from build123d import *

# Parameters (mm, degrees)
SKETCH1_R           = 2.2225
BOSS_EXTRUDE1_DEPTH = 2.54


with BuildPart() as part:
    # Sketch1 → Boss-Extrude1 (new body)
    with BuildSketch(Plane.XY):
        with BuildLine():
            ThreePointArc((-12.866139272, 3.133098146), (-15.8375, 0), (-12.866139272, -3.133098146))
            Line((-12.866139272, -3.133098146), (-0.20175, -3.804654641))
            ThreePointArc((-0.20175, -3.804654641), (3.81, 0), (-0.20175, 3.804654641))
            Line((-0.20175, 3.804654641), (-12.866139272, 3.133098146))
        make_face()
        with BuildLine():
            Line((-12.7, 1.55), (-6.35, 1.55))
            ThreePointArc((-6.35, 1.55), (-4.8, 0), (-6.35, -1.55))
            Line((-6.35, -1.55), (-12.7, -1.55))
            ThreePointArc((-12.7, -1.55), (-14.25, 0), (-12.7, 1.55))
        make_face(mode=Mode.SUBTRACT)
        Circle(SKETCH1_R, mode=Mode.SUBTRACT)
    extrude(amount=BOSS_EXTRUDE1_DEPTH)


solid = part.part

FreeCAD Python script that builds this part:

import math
import FreeCAD as App
import Part
import Sketcher
Q = App.Units.Quantity

doc = App.newDocument("Part")
body = doc.addObject("PartDesign::Body", "Body")

sketch1 = doc.addObject("Sketcher::SketchObject", "Sketch")
body.addObject(sketch1)
sketch1.AttachmentSupport = (doc.XY_Plane, [""])
sketch1.MapMode = "FlatFace"
sketch1.addGeometry(Part.ArcOfCircle(Part.Circle(App.Vector(-12.7, 0, 0), App.Vector(0, 0, 1), 3.1), math.radians(93), math.radians(267)), False)
sketch1.addGeometry(Part.LineSegment(App.Vector(-12.9, -3.1, 0), App.Vector(-0.2, -3.8, 0)), False)
sketch1.addGeometry(Part.ArcOfCircle(Part.Circle(App.Vector(0, 0, 0), App.Vector(0, 0, 1), 3.8), math.radians(-93), math.radians(93)), False)
sketch1.addGeometry(Part.LineSegment(App.Vector(-0.2, 3.8, 0), App.Vector(-12.9, 3.1, 0)), False)
sketch1.addGeometry(Part.ArcOfCircle(Part.Circle(App.Vector(-12.7, 0, 0), App.Vector(0, 0, 1), 1.6), math.radians(90), math.radians(270)), False)
sketch1.addGeometry(Part.LineSegment(App.Vector(-12.7, 1.6, 0), App.Vector(-6.3, 1.6, 0)), False)
sketch1.addGeometry(Part.ArcOfCircle(Part.Circle(App.Vector(-6.3, 0, 0), App.Vector(0, 0, 1), 1.6), math.radians(-90), math.radians(90)), False)
sketch1.addGeometry(Part.LineSegment(App.Vector(-6.3, -1.6, 0), App.Vector(-12.7, -1.6, 0)), False)
sketch1.addGeometry(Part.Circle(App.Vector(0, 0, 0), App.Vector(0, 0, 1), 2.2), False)
sketch1.addConstraint(Sketcher.Constraint("Tangent", 0, 2, 1, 1))
sketch1.addConstraint(Sketcher.Constraint("Tangent", 1, 2, 2, 1))
sketch1.addConstraint(Sketcher.Constraint("Tangent", 2, 2, 3, 1))
sketch1.addConstraint(Sketcher.Constraint("Tangent", 3, 2, 0, 1))
sketch1.addConstraint(Sketcher.Constraint("Tangent", 4, 1, 5, 1))
sketch1.addConstraint(Sketcher.Constraint("Tangent", 5, 2, 6, 2))
sketch1.addConstraint(Sketcher.Constraint("Tangent", 6, 1, 7, 1))
sketch1.addConstraint(Sketcher.Constraint("Tangent", 7, 2, 4, 2))
sketch1.addConstraint(Sketcher.Constraint("Horizontal", 5))
sketch1.addConstraint(Sketcher.Constraint("Horizontal", 7))
sketch1.addConstraint(Sketcher.Constraint("Coincident", 2, 3, -1, 1))
sketch1.addConstraint(Sketcher.Constraint("Coincident", 8, 3, -1, 1))
sketch1.addConstraint(Sketcher.Constraint("Coincident", 4, 3, 0, 3))
sketch1.addConstraint(Sketcher.Constraint("PointOnObject", 0, 3, -1))
sketch1.addConstraint(Sketcher.Constraint("Radius", 2, Q("0.15 in")))
sketch1.addConstraint(Sketcher.Constraint("Diameter", 8, Q("0.175 in")))
sketch1.addConstraint(Sketcher.Constraint("DistanceX", 5, 1, 5, 2, Q("0.25 in")))
sketch1.addConstraint(Sketcher.Constraint("DistanceX", 0, 3, -1, 1, Q("0.5 in")))
sketch1.addConstraint(Sketcher.Constraint("Radius", 0, Q("3.1375 mm")))
sketch1.addConstraint(Sketcher.Constraint("Radius", 4, Q("1.55 mm")))
pad1 = doc.addObject("PartDesign::Pad", "Pad")
body.addObject(pad1)
pad1.Profile = sketch1
pad1.Length = Q("0.1 in")

doc.recompute()
